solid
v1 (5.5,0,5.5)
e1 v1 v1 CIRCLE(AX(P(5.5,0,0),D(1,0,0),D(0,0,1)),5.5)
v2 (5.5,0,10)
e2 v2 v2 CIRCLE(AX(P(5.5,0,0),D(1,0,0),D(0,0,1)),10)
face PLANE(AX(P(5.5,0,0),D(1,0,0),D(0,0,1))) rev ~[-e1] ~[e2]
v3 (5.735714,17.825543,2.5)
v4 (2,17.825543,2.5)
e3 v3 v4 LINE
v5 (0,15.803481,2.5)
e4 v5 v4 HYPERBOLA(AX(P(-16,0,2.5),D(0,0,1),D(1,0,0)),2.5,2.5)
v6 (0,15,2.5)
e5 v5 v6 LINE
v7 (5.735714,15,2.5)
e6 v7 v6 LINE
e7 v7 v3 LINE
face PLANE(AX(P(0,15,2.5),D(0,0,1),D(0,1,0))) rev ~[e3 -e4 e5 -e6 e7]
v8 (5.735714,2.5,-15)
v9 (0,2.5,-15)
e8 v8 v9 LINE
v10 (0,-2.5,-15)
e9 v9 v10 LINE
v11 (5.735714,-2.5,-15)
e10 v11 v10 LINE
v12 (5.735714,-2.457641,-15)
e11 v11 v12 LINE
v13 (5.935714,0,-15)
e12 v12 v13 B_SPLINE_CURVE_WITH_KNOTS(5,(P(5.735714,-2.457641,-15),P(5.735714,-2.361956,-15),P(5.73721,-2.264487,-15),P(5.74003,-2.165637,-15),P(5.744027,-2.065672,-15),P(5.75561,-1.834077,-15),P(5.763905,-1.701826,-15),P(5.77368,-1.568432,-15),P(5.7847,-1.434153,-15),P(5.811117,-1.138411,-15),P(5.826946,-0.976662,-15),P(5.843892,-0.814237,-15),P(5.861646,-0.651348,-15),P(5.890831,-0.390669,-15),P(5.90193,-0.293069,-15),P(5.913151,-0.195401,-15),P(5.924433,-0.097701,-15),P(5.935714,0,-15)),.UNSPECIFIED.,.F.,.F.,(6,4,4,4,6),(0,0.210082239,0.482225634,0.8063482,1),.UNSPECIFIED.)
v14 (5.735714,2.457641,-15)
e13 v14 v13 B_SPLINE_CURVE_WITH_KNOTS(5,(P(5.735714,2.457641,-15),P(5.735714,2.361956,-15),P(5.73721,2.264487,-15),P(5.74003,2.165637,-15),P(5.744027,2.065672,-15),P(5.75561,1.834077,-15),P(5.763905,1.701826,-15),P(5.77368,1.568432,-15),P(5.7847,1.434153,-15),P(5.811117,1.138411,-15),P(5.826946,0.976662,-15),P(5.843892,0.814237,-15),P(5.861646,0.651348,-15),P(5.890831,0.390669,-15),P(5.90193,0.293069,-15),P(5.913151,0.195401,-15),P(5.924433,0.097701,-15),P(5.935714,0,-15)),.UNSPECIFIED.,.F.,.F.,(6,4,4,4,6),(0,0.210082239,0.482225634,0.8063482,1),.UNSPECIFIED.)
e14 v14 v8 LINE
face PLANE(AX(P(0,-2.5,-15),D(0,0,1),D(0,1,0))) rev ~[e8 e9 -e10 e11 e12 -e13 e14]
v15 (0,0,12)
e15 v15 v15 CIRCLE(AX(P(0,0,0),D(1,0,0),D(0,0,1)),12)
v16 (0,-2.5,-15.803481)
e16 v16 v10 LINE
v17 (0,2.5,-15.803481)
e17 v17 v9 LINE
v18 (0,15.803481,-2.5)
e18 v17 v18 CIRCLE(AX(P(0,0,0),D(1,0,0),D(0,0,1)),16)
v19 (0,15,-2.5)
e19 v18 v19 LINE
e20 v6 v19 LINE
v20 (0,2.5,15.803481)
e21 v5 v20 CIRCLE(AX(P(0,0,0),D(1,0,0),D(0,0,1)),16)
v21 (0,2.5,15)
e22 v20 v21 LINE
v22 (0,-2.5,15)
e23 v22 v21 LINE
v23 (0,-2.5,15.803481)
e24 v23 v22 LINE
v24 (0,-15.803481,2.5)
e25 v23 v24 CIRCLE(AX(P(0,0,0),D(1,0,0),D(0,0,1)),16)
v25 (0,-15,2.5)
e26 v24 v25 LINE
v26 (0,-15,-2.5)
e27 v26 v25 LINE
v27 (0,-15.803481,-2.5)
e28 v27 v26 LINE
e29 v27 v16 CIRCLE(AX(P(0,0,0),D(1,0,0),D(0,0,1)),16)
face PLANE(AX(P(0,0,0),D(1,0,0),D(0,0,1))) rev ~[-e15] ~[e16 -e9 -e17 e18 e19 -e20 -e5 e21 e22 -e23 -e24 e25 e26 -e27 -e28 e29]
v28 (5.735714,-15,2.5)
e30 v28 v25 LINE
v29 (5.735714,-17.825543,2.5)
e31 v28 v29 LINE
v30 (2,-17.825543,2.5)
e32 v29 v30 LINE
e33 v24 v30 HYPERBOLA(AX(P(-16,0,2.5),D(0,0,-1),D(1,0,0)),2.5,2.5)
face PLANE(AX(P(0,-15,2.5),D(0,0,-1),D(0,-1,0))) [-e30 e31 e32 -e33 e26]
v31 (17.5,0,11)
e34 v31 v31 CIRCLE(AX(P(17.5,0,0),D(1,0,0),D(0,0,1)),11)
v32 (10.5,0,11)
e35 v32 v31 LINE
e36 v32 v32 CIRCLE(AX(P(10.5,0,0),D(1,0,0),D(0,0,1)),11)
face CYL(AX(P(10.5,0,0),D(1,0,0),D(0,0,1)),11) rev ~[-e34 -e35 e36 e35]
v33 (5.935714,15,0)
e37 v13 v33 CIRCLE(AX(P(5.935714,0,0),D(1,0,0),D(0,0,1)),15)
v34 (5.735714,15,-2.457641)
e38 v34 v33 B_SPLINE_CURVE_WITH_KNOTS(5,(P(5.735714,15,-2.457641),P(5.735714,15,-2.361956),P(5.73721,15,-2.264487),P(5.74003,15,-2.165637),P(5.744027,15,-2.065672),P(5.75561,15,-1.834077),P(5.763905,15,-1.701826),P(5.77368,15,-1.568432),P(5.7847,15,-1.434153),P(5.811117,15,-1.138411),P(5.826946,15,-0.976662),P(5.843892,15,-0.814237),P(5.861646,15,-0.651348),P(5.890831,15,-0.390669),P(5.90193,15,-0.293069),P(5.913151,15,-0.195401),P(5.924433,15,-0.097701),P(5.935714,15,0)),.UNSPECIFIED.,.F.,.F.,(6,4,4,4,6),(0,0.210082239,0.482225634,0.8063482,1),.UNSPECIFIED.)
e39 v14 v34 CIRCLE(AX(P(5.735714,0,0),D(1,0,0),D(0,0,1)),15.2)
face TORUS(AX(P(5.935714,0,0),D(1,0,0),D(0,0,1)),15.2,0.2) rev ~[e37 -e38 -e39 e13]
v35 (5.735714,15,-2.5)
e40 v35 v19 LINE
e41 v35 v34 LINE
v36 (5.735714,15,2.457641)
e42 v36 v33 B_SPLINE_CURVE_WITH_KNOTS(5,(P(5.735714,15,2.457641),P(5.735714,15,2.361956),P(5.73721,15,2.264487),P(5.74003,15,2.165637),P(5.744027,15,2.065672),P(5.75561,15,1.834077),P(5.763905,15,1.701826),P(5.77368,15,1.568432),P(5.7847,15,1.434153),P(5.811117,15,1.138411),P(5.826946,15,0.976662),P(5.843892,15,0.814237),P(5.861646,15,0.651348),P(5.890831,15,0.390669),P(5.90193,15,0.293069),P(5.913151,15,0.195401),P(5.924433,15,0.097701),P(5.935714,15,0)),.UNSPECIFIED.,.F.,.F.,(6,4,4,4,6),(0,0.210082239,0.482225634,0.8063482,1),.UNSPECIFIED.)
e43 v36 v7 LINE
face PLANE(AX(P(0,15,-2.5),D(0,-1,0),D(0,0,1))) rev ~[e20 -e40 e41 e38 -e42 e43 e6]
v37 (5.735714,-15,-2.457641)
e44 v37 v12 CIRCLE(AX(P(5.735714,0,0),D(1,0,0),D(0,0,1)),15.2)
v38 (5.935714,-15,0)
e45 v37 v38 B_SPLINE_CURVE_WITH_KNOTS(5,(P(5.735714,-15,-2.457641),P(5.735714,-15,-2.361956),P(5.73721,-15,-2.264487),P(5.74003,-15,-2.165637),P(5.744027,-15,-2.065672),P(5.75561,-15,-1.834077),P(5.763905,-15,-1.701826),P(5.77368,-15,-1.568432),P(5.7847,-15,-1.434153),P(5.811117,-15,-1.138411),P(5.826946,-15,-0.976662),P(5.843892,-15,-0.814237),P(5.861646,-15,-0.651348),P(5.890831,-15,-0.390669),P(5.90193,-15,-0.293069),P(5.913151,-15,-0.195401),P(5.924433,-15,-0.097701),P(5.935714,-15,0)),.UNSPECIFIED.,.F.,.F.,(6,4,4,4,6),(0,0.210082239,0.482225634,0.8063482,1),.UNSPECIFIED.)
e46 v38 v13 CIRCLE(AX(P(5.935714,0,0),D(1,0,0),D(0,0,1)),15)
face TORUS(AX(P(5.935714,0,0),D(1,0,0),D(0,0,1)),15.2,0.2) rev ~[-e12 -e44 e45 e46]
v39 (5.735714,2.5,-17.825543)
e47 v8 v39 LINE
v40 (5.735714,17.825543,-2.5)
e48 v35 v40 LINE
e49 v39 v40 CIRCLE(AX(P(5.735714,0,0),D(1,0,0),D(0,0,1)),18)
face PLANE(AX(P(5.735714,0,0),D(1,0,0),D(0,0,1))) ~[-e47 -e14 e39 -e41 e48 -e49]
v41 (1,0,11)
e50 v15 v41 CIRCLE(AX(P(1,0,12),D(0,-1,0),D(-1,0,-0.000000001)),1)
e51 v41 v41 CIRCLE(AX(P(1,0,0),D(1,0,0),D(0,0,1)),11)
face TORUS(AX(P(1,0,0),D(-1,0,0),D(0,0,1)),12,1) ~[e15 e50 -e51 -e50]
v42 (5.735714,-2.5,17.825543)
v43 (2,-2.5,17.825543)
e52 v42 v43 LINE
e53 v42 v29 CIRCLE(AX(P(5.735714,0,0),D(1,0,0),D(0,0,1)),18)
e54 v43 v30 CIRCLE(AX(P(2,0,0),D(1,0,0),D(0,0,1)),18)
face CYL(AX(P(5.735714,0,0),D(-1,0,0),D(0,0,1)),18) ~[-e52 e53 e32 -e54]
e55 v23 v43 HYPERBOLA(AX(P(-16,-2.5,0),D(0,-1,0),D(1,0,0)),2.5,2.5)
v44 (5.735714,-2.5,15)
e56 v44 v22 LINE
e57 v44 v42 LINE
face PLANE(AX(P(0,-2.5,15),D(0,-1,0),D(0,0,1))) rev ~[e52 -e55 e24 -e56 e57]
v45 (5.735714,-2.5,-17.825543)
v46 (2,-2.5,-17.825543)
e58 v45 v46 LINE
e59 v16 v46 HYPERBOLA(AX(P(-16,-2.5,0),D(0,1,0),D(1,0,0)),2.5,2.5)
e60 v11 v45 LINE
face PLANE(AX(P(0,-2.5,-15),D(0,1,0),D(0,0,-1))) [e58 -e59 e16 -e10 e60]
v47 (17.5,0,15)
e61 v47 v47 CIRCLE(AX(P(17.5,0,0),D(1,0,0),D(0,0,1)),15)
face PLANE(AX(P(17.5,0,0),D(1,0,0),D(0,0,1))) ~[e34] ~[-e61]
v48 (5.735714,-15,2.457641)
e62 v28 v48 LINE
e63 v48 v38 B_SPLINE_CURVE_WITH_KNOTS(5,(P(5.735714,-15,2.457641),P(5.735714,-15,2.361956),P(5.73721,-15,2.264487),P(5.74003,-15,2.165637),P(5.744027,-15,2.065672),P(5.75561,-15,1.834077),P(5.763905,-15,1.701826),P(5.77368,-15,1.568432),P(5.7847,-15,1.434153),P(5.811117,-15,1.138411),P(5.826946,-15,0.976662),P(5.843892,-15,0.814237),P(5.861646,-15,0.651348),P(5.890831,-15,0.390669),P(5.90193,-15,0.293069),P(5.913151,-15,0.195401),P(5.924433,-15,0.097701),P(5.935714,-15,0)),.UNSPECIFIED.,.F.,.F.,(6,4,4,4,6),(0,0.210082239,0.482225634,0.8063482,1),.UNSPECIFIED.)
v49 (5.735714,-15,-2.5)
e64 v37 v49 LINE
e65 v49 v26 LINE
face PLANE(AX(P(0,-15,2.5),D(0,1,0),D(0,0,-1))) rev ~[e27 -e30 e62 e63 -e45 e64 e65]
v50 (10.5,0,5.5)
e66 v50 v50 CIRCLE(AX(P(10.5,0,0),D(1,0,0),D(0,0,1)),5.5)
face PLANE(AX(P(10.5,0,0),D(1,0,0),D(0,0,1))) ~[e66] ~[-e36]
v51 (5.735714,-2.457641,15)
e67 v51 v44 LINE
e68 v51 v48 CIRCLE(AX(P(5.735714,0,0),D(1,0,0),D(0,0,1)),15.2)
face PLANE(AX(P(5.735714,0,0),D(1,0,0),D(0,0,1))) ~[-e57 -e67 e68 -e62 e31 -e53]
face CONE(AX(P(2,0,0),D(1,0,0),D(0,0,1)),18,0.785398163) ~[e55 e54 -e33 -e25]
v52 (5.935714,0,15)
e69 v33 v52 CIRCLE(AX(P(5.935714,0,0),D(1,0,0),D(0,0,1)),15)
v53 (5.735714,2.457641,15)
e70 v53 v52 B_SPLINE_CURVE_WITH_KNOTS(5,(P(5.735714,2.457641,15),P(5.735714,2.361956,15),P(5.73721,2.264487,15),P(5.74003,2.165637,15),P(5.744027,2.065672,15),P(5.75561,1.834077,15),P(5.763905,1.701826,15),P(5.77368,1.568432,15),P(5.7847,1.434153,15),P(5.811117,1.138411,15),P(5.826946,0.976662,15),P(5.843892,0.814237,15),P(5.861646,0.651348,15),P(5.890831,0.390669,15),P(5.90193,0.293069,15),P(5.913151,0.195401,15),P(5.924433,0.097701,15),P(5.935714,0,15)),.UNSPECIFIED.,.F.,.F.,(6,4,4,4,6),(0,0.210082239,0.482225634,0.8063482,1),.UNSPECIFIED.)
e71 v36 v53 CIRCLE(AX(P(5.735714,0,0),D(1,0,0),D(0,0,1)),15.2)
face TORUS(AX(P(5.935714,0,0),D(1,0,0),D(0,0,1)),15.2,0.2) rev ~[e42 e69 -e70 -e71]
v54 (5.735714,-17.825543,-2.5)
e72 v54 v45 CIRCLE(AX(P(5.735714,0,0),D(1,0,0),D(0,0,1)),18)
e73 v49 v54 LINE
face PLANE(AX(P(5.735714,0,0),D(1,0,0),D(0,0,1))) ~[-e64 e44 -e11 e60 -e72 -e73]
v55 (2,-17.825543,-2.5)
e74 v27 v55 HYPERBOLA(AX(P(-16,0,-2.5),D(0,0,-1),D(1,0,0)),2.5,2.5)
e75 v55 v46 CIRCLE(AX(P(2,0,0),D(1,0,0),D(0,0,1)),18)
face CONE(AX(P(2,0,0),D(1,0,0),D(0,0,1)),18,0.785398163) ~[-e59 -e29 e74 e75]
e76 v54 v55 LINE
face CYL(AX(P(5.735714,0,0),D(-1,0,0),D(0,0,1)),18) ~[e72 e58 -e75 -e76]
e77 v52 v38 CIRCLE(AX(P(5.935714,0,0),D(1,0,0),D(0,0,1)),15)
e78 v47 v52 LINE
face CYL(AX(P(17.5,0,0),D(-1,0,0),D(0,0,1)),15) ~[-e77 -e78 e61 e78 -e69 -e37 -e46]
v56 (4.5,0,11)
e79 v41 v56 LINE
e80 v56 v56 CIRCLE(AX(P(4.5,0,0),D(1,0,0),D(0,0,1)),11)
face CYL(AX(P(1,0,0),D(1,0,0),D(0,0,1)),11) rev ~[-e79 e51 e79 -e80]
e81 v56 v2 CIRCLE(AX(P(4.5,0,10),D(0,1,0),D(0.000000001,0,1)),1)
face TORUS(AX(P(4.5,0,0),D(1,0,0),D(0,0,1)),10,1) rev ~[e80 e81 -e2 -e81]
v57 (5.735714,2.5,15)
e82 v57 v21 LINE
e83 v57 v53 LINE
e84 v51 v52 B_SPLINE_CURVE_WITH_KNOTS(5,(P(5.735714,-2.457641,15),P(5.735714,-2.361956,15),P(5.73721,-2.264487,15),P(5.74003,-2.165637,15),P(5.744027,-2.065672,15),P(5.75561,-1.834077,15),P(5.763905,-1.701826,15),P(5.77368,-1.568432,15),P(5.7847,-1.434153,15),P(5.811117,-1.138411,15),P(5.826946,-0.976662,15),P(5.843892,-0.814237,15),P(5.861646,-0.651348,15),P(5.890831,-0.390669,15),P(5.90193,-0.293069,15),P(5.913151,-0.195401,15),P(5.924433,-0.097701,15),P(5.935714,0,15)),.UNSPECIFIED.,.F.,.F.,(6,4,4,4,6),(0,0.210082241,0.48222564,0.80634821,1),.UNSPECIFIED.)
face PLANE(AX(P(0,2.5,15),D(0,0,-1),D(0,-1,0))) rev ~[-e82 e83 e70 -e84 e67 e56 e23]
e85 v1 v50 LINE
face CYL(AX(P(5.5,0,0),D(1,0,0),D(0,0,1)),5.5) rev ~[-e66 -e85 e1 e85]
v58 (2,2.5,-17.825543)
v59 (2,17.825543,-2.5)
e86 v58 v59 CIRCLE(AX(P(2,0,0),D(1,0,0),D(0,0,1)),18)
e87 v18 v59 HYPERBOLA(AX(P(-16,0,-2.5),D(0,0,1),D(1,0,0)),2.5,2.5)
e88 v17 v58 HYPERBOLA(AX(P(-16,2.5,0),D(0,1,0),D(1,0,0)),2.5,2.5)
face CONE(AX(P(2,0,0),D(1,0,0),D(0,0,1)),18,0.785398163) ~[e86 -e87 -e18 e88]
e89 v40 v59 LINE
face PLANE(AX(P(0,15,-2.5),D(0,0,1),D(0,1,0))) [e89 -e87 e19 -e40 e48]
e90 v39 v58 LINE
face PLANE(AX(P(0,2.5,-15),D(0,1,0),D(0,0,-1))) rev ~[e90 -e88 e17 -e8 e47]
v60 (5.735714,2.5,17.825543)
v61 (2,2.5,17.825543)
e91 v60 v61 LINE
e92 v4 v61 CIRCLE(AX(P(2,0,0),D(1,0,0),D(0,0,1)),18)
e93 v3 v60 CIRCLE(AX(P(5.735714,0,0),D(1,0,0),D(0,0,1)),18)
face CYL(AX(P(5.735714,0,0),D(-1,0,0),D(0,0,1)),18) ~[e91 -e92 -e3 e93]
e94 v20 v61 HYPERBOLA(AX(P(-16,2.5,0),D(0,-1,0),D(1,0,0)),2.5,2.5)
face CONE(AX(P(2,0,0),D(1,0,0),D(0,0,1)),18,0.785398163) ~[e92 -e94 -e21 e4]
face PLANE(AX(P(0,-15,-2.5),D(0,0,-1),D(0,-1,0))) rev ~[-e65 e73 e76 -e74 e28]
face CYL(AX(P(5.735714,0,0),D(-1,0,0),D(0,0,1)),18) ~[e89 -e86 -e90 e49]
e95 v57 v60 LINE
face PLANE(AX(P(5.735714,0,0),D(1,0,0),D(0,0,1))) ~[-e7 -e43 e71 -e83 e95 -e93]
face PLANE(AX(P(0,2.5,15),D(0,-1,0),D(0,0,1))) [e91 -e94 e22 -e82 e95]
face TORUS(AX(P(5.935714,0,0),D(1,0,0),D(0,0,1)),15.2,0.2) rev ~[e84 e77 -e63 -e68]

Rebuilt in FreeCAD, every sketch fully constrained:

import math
import FreeCAD as App
import Part
import Sketcher
Q = App.Units.Quantity


def add_polygon(sketch, points):
    """Adds a closed chain of lines whose ends are joined by coincident constraints."""
    first, n = sketch.GeometryCount, len(points)
    for a, b in zip(points, points[1:] + points[:1]):
        sketch.addGeometry(Part.LineSegment(App.Vector(*a, 0), App.Vector(*b, 0)), False)
    for i in range(n):
        sketch.addConstraint(Sketcher.Constraint("Coincident", first + i, 2, first + (i + 1) % n, 1))

doc = App.newDocument("Part")
params = doc.addObject("Spreadsheet::Sheet", "Params")
for row, (alias, value) in enumerate([
    ("sketch1_radius", "1 mm"),
    ("sketch1_radius2", "0.2 mm"),
    ("sketch1_width", "5 mm"),
    ("sketch1_width2", "7 mm"),
    ("sketch1_height", "4 mm"),
    ("revolution_angle", "360 deg"),
    ("sketch2_width", "3 mm"),
    ("sketch2_height", "5 mm"),
    ("pocket1_length", "63.781874 mm"),
], start=1):
    params.set(f"A{row}", alias)
    params.set(f"B{row}", "=" + value)
    params.setAlias(f"B{row}", alias)

body = doc.addObject("PartDesign::Body", "Body")

sketch1 = body.newObject("Sketcher::SketchObject", "Sketch")
sketch1.AttachmentSupport = (doc.getObject("XY_Plane"), [""])
sketch1.MapMode = "FlatFace"
sketch1.addGeometry(Part.LineSegment(App.Vector(5.5, 5.5, 0), App.Vector(10.5, 5.5, 0)), False)
sketch1.addGeometry(Part.LineSegment(App.Vector(10.5, 5.5, 0), App.Vector(10.5, 11, 0)), False)
sketch1.addGeometry(Part.LineSegment(App.Vector(10.5, 11, 0), App.Vector(17.5, 11, 0)), False)
sketch1.addGeometry(Part.LineSegment(App.Vector(17.5, 11, 0), App.Vector(17.5, 15, 0)), False)
sketch1.addGeometry(Part.LineSegment(App.Vector(17.5, 15, 0), App.Vector(5.935714, 15, 0)), False)
sketch1.addGeometry(Part.ArcOfCircle(Part.Circle(App.Vector(5.935714, 15.2, 0), App.Vector(0, 0, 1), 0.2), math.radians(180), math.radians(270)), False)
sketch1.addGeometry(Part.LineSegment(App.Vector(5.735714, 15.2, 0), App.Vector(5.735714, 18, 0)), False)
sketch1.addGeometry(Part.LineSegment(App.Vector(5.735714, 18, 0), App.Vector(2, 18, 0)), False)
sketch1.addGeometry(Part.LineSegment(App.Vector(2, 18, 0), App.Vector(0, 16, 0)), False)
sketch1.addGeometry(Part.LineSegment(App.Vector(0, 16, 0), App.Vector(0, 12, 0)), False)
sketch1.addGeometry(Part.ArcOfCircle(Part.Circle(App.Vector(1, 12, 0), App.Vector(0, 0, 1), 1), math.radians(-180), math.radians(-90)), False)
sketch1.addGeometry(Part.LineSegment(App.Vector(1, 11, 0), App.Vector(4.5, 11, 0)), False)
sketch1.addGeometry(Part.ArcOfCircle(Part.Circle(App.Vector(4.5, 10, 0), App.Vector(0, 0, 1), 1), math.radians(0), math.radians(90)), False)
sketch1.addGeometry(Part.LineSegment(App.Vector(5.5, 10, 0), App.Vector(5.5, 5.5, 0)), False)
sketch1.addConstraint(Sketcher.Constraint("Coincident", 0, 2, 1, 1))
sketch1.addConstraint(Sketcher.Constraint("Coincident", 1, 2, 2, 1))
sketch1.addConstraint(Sketcher.Constraint("Coincident", 2, 2, 3, 1))
sketch1.addConstraint(Sketcher.Constraint("Coincident", 3, 2, 4, 1))
sketch1.addConstraint(Sketcher.Constraint("Tangent", 4, 2, 5, 2))
sketch1.addConstraint(Sketcher.Constraint("Tangent", 5, 1, 6, 1))
sketch1.addConstraint(Sketcher.Constraint("Coincident", 6, 2, 7, 1))
sketch1.addConstraint(Sketcher.Constraint("Coincident", 7, 2, 8, 1))
sketch1.addConstraint(Sketcher.Constraint("Coincident", 8, 2, 9, 1))
sketch1.addConstraint(Sketcher.Constraint("Tangent", 9, 2, 10, 1))
sketch1.addConstraint(Sketcher.Constraint("Tangent", 10, 2, 11, 1))
sketch1.addConstraint(Sketcher.Constraint("Tangent", 11, 2, 12, 2))
sketch1.addConstraint(Sketcher.Constraint("Tangent", 12, 1, 13, 1))
sketch1.addConstraint(Sketcher.Constraint("Coincident", 13, 2, 0, 1))
sketch1.addConstraint(Sketcher.Constraint("Horizontal", 0))
sketch1.addConstraint(Sketcher.Constraint("Vertical", 1))
sketch1.addConstraint(Sketcher.Constraint("Horizontal", 2))
sketch1.addConstraint(Sketcher.Constraint("Vertical", 3))
sketch1.addConstraint(Sketcher.Constraint("Horizontal", 4))
sketch1.addConstraint(Sketcher.Constraint("Vertical", 6))
sketch1.addConstraint(Sketcher.Constraint("Horizontal", 7))
sketch1.addConstraint(Sketcher.Constraint("Vertical", 9))
sketch1.addConstraint(Sketcher.Constraint("Horizontal", 11))
sketch1.addConstraint(Sketcher.Constraint("Vertical", 13))
sketch1.addConstraint(Sketcher.Constraint("Equal", 10, 12))
sketch1.addConstraint(Sketcher.Constraint("PointOnObject", 8, 2, -2))
sketch1.addConstraint(Sketcher.Constraint("Horizontal", 2, 2, 10, 2))
sketch1.addConstraint(Sketcher.Constraint("Equal", 3, 9))
sketch1.addConstraint(Sketcher.Constraint("Radius", 10, Q("1 mm")))
sketch1.addConstraint(Sketcher.Constraint("Radius", 5, Q("0.2 mm")))
sketch1.addConstraint(Sketcher.Constraint("DistanceX", 0, 1, 0, 2, Q("5 mm")))
sketch1.addConstraint(Sketcher.Constraint("DistanceX", 2, 1, 2, 2, Q("7 mm")))
sketch1.addConstraint(Sketcher.Constraint("DistanceY", 3, 1, 3, 2, Q("4 mm")))
sketch1.addConstraint(Sketcher.Constraint("Angle", 8, Q("-135 deg")))
sketch1.addConstraint(Sketcher.Constraint("DistanceX", 11, 1, 11, 2, Q("3.5 mm")))
sketch1.addConstraint(Sketcher.Constraint("DistanceY", 1, 1, 1, 2, Q("5.5 mm")))
sketch1.addConstraint(Sketcher.Constraint("DistanceY", 6, 1, 6, 2, Q("2.8 mm")))
sketch1.addConstraint(Sketcher.Constraint("DistanceY", -1, 1, 10, 3, Q("12 mm")))
sketch1.addConstraint(Sketcher.Constraint("DistanceX", 4, 2, 4, 1, Q("11.564286 mm")))
sketch1.setExpression("Constraints[28]", "Params.sketch1_radius")
sketch1.setExpression("Constraints[29]", "Params.sketch1_radius2")
sketch1.setExpression("Constraints[30]", "Params.sketch1_width")
sketch1.setExpression("Constraints[31]", "Params.sketch1_width2")
sketch1.setExpression("Constraints[32]", "Params.sketch1_height")
revolution = body.newObject("PartDesign::Revolution", "Revolution")
revolution.Profile = sketch1
revolution.ReferenceAxis = (sketch1, ["H_Axis"])
revolution.setExpression("Angle", "Params.revolution_angle")

sketch2 = body.newObject("Sketcher::SketchObject", "Sketch001")
sketch2.AttachmentSupport = (doc.getObject("YZ_Plane"), [""])
sketch2.MapMode = "FlatFace"
add_polygon(sketch2, [(18, -2.5), (15, -2.5), (15, 2.5), (18, 2.5)])
sketch2.addConstraint(Sketcher.Constraint("Horizontal", 0))
sketch2.addConstraint(Sketcher.Constraint("Vertical", 1))
sketch2.addConstraint(Sketcher.Constraint("Horizontal", 2))
sketch2.addConstraint(Sketcher.Constraint("Vertical", 3))
sketch2.addConstraint(Sketcher.Constraint("DistanceX", 0, 2, 0, 1, Q("3 mm")))
sketch2.addConstraint(Sketcher.Constraint("DistanceY", 1, 1, 1, 2, Q("5 mm")))
sketch2.addConstraint(Sketcher.Constraint("DistanceX", -1, 1, 0, 2, Q("15 mm")))
sketch2.addConstraint(Sketcher.Constraint("DistanceY", 0, 2, -1, 1, Q("2.5 mm")))
sketch2.setExpression("Constraints[8]", "Params.sketch2_width")
sketch2.setExpression("Constraints[9]", "Params.sketch2_height")
pocket1 = body.newObject("PartDesign::Pocket", "Pocket")
pocket1.Profile = sketch2
pocket1.setExpression("Length", "Params.pocket1_length")
pocket1.Midplane = True
doc.recompute()

polarpattern = body.newObject("PartDesign::PolarPattern", "PolarPattern")
polarpattern.Originals = [pocket1]
polarpattern.Axis = (doc.getObject("X_Axis"), [""])
polarpattern.Angle = 360
polarpattern.Occurrences = 4
body.Tip = polarpattern

doc.recompute()
